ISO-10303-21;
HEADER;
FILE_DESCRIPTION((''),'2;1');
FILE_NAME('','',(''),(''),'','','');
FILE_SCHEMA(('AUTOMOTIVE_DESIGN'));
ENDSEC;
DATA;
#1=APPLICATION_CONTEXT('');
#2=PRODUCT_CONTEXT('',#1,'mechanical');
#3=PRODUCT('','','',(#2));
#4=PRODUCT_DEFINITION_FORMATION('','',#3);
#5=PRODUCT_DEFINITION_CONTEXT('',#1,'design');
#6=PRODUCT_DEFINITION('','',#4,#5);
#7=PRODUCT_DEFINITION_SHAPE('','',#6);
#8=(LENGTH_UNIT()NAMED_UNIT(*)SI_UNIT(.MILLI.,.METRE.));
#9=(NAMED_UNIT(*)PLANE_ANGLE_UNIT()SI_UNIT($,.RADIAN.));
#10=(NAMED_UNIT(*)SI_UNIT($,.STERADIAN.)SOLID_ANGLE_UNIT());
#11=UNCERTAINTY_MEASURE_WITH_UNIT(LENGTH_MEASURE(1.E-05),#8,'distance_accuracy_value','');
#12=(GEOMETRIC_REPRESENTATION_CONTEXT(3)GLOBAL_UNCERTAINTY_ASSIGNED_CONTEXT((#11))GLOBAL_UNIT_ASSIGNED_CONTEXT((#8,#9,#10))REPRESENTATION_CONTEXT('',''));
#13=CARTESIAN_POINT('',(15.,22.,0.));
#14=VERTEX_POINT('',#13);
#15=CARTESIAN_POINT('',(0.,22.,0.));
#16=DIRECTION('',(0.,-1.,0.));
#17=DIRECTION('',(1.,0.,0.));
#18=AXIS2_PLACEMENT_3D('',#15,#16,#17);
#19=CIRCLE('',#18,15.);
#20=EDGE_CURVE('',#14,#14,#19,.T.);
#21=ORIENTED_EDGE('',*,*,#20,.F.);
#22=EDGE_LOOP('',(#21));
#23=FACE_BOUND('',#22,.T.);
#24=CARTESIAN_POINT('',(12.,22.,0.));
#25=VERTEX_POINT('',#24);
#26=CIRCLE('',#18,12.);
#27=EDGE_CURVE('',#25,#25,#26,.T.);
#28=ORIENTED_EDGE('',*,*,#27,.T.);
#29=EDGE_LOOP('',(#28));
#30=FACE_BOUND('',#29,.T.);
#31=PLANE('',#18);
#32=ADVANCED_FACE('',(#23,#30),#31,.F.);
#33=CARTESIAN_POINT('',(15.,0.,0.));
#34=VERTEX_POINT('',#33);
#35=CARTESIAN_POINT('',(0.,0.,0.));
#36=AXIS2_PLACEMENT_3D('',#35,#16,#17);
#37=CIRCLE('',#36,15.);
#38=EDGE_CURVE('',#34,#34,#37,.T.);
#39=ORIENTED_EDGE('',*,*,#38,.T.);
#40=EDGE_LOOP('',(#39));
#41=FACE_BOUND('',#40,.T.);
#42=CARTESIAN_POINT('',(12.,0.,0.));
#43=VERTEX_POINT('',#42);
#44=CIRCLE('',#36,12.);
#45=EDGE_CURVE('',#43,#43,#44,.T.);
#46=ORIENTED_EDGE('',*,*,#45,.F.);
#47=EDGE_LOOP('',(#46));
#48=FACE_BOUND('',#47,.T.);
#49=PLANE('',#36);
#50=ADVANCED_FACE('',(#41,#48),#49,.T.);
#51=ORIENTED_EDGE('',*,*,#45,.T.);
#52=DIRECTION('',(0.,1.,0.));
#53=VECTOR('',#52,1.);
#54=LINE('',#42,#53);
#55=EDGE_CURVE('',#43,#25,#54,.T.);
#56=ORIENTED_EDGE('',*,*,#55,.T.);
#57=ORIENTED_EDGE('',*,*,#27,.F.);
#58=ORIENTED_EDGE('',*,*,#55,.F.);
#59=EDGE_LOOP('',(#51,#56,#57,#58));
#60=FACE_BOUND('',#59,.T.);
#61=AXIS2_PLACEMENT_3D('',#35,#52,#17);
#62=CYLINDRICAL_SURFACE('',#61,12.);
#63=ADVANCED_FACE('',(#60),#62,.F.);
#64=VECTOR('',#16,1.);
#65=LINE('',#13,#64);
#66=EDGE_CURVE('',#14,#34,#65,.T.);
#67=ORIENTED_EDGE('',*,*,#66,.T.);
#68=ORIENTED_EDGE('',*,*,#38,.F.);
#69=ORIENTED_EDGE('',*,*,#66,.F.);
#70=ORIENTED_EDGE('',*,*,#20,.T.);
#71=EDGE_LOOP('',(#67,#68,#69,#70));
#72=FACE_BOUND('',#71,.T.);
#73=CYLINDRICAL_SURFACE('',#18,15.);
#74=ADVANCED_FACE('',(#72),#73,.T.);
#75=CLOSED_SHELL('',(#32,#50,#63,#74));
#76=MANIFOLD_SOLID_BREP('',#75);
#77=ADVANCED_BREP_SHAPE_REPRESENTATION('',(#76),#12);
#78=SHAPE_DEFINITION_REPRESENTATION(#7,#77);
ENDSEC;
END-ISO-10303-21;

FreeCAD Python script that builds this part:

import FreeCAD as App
import Part
import Sketcher

V = App.Vector
Q = App.Units.Quantity


def add_polygon(sketch, points):
    """Adds a closed chain of lines whose ends are joined by coincident constraints."""
    first, n = sketch.GeometryCount, len(points)
    for a, b in zip(points, points[1:] + points[:1]):
        sketch.addGeometry(Part.LineSegment(App.Vector(*a, 0), App.Vector(*b, 0)), False)
    for i in range(n):
        sketch.addConstraint(Sketcher.Constraint("Coincident", first + i, 2, first + (i + 1) % n, 1))

doc = App.newDocument("Part")
body = doc.addObject("PartDesign::Body", "Body")

# Sketch on XY plane
sketch1 = body.newObject("Sketcher::SketchObject", "Sketch")
sketch1.AttachmentSupport = (doc.getObject("XY_Plane"), [""])
sketch1.MapMode = "FlatFace"
add_polygon(sketch1, [(15, 22), (12, 22), (12, 0), (15, 0)])  # lines 0-3
sketch1.addConstraint([
    Sketcher.Constraint("Horizontal", 0),
    Sketcher.Constraint("Vertical", 1),
    Sketcher.Constraint("Horizontal", 2),
    Sketcher.Constraint("Vertical", 3),
    Sketcher.Constraint("PointOnObject", 1, 2, -1),
    Sketcher.Constraint("DistanceX", 0, 2, 0, 1, Q("3 mm")),
    Sketcher.Constraint("DistanceY", 1, 2, 1, 1, Q("22 mm")),
    Sketcher.Constraint("DistanceX", -1, 1, 0, 2, Q("12 mm")),
])
revolution = body.newObject("PartDesign::Revolution", "Revolution")
revolution.Profile = sketch1
revolution.ReferenceAxis = (sketch1, ["V_Axis"])
revolution.Angle = 360

doc.recompute()
